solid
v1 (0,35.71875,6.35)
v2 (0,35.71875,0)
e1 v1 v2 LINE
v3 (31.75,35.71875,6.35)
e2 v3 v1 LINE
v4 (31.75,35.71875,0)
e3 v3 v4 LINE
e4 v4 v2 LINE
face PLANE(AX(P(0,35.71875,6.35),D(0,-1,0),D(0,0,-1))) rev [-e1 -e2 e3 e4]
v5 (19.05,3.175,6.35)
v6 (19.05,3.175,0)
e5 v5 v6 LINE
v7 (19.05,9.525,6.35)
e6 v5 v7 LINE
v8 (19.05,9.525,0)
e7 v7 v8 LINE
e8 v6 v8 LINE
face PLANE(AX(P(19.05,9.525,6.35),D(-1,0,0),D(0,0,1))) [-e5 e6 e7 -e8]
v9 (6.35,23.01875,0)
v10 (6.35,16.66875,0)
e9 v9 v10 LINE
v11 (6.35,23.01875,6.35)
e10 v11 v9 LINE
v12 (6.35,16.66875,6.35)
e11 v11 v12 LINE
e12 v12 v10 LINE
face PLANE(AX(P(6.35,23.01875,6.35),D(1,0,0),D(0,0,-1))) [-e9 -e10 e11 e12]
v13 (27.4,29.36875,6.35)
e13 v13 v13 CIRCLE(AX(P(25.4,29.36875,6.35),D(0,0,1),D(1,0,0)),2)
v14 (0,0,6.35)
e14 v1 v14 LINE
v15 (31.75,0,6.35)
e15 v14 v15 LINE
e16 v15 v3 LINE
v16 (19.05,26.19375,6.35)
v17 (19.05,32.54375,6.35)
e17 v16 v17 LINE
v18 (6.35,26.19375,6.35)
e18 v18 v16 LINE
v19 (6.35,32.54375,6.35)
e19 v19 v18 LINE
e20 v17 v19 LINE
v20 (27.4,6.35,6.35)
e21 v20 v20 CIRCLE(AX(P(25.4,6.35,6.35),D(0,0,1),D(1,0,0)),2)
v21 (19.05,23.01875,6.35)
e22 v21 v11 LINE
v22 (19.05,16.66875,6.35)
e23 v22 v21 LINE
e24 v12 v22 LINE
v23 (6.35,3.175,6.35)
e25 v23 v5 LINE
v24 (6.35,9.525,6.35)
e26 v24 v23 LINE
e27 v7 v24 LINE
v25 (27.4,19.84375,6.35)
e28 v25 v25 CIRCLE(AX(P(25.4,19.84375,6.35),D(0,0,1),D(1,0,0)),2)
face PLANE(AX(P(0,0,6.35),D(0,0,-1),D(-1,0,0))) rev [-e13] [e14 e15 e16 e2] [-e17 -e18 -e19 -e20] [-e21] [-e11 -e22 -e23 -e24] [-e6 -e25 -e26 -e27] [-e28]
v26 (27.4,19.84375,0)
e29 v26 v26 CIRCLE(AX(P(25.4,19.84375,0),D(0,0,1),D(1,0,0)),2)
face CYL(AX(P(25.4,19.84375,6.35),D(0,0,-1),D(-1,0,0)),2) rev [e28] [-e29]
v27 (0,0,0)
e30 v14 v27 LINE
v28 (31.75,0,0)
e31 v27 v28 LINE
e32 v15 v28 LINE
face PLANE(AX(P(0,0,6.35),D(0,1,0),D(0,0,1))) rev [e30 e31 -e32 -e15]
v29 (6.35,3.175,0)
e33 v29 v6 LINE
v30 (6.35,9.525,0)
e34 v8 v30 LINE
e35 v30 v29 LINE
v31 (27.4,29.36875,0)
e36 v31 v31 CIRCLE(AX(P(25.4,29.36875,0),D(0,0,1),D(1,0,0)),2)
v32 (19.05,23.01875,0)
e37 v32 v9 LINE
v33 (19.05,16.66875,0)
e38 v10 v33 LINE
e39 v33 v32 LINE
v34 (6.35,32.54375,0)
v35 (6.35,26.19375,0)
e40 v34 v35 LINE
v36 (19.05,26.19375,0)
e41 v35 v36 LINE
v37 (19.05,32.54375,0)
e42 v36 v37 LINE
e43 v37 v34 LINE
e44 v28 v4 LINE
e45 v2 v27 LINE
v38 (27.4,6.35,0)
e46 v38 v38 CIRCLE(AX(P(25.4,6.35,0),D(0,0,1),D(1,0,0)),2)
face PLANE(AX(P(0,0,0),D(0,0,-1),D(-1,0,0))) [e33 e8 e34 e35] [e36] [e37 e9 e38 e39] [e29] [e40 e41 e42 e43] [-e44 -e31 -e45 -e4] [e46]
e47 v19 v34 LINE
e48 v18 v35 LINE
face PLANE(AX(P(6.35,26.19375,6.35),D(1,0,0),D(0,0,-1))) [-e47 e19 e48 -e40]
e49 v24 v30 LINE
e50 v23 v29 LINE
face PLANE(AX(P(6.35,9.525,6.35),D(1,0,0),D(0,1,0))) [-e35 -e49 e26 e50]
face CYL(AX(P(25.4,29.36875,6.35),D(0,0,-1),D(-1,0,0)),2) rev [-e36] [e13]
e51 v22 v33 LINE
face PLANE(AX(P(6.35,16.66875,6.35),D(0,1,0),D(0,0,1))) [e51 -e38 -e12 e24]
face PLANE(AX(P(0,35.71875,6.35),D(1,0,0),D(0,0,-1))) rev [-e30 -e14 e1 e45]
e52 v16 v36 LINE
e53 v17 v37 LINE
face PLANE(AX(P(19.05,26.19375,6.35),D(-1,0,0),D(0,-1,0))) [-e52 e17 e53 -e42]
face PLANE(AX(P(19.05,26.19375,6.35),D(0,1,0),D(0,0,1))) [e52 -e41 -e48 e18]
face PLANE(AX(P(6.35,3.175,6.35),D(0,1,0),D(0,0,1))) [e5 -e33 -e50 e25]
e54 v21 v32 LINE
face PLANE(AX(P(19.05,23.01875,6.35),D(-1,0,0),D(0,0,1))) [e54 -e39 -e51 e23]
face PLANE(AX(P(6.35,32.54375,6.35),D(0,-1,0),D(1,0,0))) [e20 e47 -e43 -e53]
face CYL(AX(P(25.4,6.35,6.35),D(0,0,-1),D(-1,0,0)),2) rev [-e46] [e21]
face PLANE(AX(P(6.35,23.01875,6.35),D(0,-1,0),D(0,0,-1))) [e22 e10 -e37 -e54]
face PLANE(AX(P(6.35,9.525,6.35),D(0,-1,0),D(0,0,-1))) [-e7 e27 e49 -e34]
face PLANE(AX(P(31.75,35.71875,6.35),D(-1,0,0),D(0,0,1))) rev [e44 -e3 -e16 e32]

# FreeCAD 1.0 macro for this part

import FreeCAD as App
import Part
import Sketcher
Q = App.Units.Quantity

doc = App.newDocument("Part")
body = doc.addObject("PartDesign::Body", "Body")

sketch1 = body.newObject("Sketcher::SketchObject", "Sketch")
sketch1.AttachmentSupport = (doc.getObject("XY_Plane"), [""])
sketch1.MapMode = "FlatFace"
sketch1.addGeometry(Part.LineSegment(App.Vector(0, 35.71875, 0), App.Vector(0, 0, 0)), False)
sketch1.addGeometry(Part.LineSegment(App.Vector(0, 0, 0), App.Vector(31.75, 0, 0)), False)
sketch1.addGeometry(Part.LineSegment(App.Vector(31.75, 0, 0), App.Vector(31.75, 35.71875, 0)), False)
sketch1.addGeometry(Part.LineSegment(App.Vector(31.75, 35.71875, 0), App.Vector(0, 35.71875, 0)), False)
sketch1.addGeometry(Part.LineSegment(App.Vector(19.05, 3.175, 0), App.Vector(6.35, 3.175, 0)), False)
sketch1.addGeometry(Part.LineSegment(App.Vector(6.35, 3.175, 0), App.Vector(6.35, 9.525, 0)), False)
sketch1.addGeometry(Part.LineSegment(App.Vector(6.35, 9.525, 0), App.Vector(19.05, 9.525, 0)), False)
sketch1.addGeometry(Part.LineSegment(App.Vector(19.05, 9.525, 0), App.Vector(19.05, 3.175, 0)), False)
sketch1.addGeometry(Part.Circle(App.Vector(25.4, 6.35, 0), App.Vector(0, 0, 1), 2), False)
sketch1.addGeometry(Part.LineSegment(App.Vector(19.05, 16.66875, 0), App.Vector(6.35, 16.66875, 0)), False)
sketch1.addGeometry(Part.LineSegment(App.Vector(6.35, 16.66875, 0), App.Vector(6.35, 23.01875, 0)), False)
sketch1.addGeometry(Part.LineSegment(App.Vector(6.35, 23.01875, 0), App.Vector(19.05, 23.01875, 0)), False)
sketch1.addGeometry(Part.LineSegment(App.Vector(19.05, 23.01875, 0), App.Vector(19.05, 16.66875, 0)), False)
sketch1.addGeometry(Part.LineSegment(App.Vector(19.05, 26.19375, 0), App.Vector(6.35, 26.19375, 0)), False)
sketch1.addGeometry(Part.LineSegment(App.Vector(6.35, 26.19375, 0), App.Vector(6.35, 32.54375, 0)), False)
sketch1.addGeometry(Part.LineSegment(App.Vector(6.35, 32.54375, 0), App.Vector(19.05, 32.54375, 0)), False)
sketch1.addGeometry(Part.LineSegment(App.Vector(19.05, 32.54375, 0), App.Vector(19.05, 26.19375, 0)), False)
sketch1.addGeometry(Part.Circle(App.Vector(25.4, 19.84375, 0), App.Vector(0, 0, 1), 2), False)
sketch1.addGeometry(Part.Circle(App.Vector(25.4, 29.36875, 0), App.Vector(0, 0, 1), 2), False)
sketch1.addConstraint(Sketcher.Constraint("Coincident", 0, 2, 1, 1))
sketch1.addConstraint(Sketcher.Constraint("Coincident", 1, 2, 2, 1))
sketch1.addConstraint(Sketcher.Constraint("Coincident", 2, 2, 3, 1))
sketch1.addConstraint(Sketcher.Constraint("Coincident", 3, 2, 0, 1))
sketch1.addConstraint(Sketcher.Constraint("Coincident", 4, 2, 5, 1))
sketch1.addConstraint(Sketcher.Constraint("Coincident", 5, 2, 6, 1))
sketch1.addConstraint(Sketcher.Constraint("Coincident", 6, 2, 7, 1))
sketch1.addConstraint(Sketcher.Constraint("Coincident", 7, 2, 4, 1))
sketch1.addConstraint(Sketcher.Constraint("Coincident", 9, 2, 10, 1))
sketch1.addConstraint(Sketcher.Constraint("Coincident", 10, 2, 11, 1))
sketch1.addConstraint(Sketcher.Constraint("Coincident", 11, 2, 12, 1))
sketch1.addConstraint(Sketcher.Constraint("Coincident", 12, 2, 9, 1))
sketch1.addConstraint(Sketcher.Constraint("Coincident", 13, 2, 14, 1))
sketch1.addConstraint(Sketcher.Constraint("Coincident", 14, 2, 15, 1))
sketch1.addConstraint(Sketcher.Constraint("Coincident", 15, 2, 16, 1))
sketch1.addConstraint(Sketcher.Constraint("Coincident", 16, 2, 13, 1))
sketch1.addConstraint(Sketcher.Constraint("Vertical", 0))
sketch1.addConstraint(Sketcher.Constraint("Horizontal", 1))
sketch1.addConstraint(Sketcher.Constraint("Vertical", 2))
sketch1.addConstraint(Sketcher.Constraint("Horizontal", 3))
sketch1.addConstraint(Sketcher.Constraint("Horizontal", 4))
sketch1.addConstraint(Sketcher.Constraint("Vertical", 5))
sketch1.addConstraint(Sketcher.Constraint("Horizontal", 6))
sketch1.addConstraint(Sketcher.Constraint("Vertical", 7))
sketch1.addConstraint(Sketcher.Constraint("Horizontal", 9))
sketch1.addConstraint(Sketcher.Constraint("Vertical", 10))
sketch1.addConstraint(Sketcher.Constraint("Horizontal", 11))
sketch1.addConstraint(Sketcher.Constraint("Vertical", 12))
sketch1.addConstraint(Sketcher.Constraint("Horizontal", 13))
sketch1.addConstraint(Sketcher.Constraint("Vertical", 14))
sketch1.addConstraint(Sketcher.Constraint("Horizontal", 15))
sketch1.addConstraint(Sketcher.Constraint("Vertical", 16))
sketch1.addConstraint(Sketcher.Constraint("Coincident", 0, 2, -1, 1))
sketch1.addConstraint(Sketcher.Constraint("Equal", 8, 17))
sketch1.addConstraint(Sketcher.Constraint("Equal", 17, 18))
sketch1.addConstraint(Sketcher.Constraint("Vertical", 8, 3, 17, 3))
sketch1.addConstraint(Sketcher.Constraint("Vertical", 17, 3, 18, 3))
sketch1.addConstraint(Sketcher.Constraint("Vertical", 5, 2, 9, 2))
sketch1.addConstraint(Sketcher.Constraint("Vertical", 7, 2, 11, 2))
sketch1.addConstraint(Sketcher.Constraint("Vertical", 10, 2, 13, 2))
sketch1.addConstraint(Sketcher.Constraint("Vertical", 12, 2, 15, 2))
sketch1.addConstraint(Sketcher.Constraint("Equal", 7, 10))
sketch1.addConstraint(Sketcher.Constraint("Equal", 12, 14))
sketch1.addConstraint(Sketcher.Constraint("DistanceX", 4, 2, 4, 1, Q("0.5 in")))
sketch1.addConstraint(Sketcher.Constraint("DistanceX", -1, 1, 8, 3, Q("1 in")))
sketch1.addConstraint(Sketcher.Constraint("DistanceX", 4, 2, 1, 2, Q("1 in")))
sketch1.addConstraint(Sketcher.Constraint("DistanceX", 1, 1, 1, 2, Q("1.25 in")))
sketch1.addConstraint(Sketcher.Constraint("DistanceY", 5, 1, 5, 2, Q("0.25 in")))
sketch1.addConstraint(Sketcher.Constraint("DistanceY", 10, 2, 3, 2, Q("0.5 in")))
sketch1.addConstraint(Sketcher.Constraint("DistanceY", 17, 3, 15, 2, Q("0.5 in")))
sketch1.addConstraint(Sketcher.Constraint("Diameter", 8, Q("4 mm")))
sketch1.addConstraint(Sketcher.Constraint("DistanceY", 0, 2, 0, 1, Q("1.40625 in")))
sketch1.addConstraint(Sketcher.Constraint("DistanceY", -1, 1, 8, 3, Q("0.25 in")))
sketch1.addConstraint(Sketcher.Constraint("DistanceY", 18, 3, 2, 2, Q("0.25 in")))
sketch1.addConstraint(Sketcher.Constraint("DistanceY", -1, 1, 17, 3, Q("0.78125 in")))
sketch1.addConstraint(Sketcher.Constraint("DistanceY", -1, 1, 4, 2, Q("0.125 in")))
pad1 = body.newObject("PartDesign::Pad", "Pad")
pad1.Profile = sketch1
pad1.Length = Q("0.25 in")

doc.recompute()
